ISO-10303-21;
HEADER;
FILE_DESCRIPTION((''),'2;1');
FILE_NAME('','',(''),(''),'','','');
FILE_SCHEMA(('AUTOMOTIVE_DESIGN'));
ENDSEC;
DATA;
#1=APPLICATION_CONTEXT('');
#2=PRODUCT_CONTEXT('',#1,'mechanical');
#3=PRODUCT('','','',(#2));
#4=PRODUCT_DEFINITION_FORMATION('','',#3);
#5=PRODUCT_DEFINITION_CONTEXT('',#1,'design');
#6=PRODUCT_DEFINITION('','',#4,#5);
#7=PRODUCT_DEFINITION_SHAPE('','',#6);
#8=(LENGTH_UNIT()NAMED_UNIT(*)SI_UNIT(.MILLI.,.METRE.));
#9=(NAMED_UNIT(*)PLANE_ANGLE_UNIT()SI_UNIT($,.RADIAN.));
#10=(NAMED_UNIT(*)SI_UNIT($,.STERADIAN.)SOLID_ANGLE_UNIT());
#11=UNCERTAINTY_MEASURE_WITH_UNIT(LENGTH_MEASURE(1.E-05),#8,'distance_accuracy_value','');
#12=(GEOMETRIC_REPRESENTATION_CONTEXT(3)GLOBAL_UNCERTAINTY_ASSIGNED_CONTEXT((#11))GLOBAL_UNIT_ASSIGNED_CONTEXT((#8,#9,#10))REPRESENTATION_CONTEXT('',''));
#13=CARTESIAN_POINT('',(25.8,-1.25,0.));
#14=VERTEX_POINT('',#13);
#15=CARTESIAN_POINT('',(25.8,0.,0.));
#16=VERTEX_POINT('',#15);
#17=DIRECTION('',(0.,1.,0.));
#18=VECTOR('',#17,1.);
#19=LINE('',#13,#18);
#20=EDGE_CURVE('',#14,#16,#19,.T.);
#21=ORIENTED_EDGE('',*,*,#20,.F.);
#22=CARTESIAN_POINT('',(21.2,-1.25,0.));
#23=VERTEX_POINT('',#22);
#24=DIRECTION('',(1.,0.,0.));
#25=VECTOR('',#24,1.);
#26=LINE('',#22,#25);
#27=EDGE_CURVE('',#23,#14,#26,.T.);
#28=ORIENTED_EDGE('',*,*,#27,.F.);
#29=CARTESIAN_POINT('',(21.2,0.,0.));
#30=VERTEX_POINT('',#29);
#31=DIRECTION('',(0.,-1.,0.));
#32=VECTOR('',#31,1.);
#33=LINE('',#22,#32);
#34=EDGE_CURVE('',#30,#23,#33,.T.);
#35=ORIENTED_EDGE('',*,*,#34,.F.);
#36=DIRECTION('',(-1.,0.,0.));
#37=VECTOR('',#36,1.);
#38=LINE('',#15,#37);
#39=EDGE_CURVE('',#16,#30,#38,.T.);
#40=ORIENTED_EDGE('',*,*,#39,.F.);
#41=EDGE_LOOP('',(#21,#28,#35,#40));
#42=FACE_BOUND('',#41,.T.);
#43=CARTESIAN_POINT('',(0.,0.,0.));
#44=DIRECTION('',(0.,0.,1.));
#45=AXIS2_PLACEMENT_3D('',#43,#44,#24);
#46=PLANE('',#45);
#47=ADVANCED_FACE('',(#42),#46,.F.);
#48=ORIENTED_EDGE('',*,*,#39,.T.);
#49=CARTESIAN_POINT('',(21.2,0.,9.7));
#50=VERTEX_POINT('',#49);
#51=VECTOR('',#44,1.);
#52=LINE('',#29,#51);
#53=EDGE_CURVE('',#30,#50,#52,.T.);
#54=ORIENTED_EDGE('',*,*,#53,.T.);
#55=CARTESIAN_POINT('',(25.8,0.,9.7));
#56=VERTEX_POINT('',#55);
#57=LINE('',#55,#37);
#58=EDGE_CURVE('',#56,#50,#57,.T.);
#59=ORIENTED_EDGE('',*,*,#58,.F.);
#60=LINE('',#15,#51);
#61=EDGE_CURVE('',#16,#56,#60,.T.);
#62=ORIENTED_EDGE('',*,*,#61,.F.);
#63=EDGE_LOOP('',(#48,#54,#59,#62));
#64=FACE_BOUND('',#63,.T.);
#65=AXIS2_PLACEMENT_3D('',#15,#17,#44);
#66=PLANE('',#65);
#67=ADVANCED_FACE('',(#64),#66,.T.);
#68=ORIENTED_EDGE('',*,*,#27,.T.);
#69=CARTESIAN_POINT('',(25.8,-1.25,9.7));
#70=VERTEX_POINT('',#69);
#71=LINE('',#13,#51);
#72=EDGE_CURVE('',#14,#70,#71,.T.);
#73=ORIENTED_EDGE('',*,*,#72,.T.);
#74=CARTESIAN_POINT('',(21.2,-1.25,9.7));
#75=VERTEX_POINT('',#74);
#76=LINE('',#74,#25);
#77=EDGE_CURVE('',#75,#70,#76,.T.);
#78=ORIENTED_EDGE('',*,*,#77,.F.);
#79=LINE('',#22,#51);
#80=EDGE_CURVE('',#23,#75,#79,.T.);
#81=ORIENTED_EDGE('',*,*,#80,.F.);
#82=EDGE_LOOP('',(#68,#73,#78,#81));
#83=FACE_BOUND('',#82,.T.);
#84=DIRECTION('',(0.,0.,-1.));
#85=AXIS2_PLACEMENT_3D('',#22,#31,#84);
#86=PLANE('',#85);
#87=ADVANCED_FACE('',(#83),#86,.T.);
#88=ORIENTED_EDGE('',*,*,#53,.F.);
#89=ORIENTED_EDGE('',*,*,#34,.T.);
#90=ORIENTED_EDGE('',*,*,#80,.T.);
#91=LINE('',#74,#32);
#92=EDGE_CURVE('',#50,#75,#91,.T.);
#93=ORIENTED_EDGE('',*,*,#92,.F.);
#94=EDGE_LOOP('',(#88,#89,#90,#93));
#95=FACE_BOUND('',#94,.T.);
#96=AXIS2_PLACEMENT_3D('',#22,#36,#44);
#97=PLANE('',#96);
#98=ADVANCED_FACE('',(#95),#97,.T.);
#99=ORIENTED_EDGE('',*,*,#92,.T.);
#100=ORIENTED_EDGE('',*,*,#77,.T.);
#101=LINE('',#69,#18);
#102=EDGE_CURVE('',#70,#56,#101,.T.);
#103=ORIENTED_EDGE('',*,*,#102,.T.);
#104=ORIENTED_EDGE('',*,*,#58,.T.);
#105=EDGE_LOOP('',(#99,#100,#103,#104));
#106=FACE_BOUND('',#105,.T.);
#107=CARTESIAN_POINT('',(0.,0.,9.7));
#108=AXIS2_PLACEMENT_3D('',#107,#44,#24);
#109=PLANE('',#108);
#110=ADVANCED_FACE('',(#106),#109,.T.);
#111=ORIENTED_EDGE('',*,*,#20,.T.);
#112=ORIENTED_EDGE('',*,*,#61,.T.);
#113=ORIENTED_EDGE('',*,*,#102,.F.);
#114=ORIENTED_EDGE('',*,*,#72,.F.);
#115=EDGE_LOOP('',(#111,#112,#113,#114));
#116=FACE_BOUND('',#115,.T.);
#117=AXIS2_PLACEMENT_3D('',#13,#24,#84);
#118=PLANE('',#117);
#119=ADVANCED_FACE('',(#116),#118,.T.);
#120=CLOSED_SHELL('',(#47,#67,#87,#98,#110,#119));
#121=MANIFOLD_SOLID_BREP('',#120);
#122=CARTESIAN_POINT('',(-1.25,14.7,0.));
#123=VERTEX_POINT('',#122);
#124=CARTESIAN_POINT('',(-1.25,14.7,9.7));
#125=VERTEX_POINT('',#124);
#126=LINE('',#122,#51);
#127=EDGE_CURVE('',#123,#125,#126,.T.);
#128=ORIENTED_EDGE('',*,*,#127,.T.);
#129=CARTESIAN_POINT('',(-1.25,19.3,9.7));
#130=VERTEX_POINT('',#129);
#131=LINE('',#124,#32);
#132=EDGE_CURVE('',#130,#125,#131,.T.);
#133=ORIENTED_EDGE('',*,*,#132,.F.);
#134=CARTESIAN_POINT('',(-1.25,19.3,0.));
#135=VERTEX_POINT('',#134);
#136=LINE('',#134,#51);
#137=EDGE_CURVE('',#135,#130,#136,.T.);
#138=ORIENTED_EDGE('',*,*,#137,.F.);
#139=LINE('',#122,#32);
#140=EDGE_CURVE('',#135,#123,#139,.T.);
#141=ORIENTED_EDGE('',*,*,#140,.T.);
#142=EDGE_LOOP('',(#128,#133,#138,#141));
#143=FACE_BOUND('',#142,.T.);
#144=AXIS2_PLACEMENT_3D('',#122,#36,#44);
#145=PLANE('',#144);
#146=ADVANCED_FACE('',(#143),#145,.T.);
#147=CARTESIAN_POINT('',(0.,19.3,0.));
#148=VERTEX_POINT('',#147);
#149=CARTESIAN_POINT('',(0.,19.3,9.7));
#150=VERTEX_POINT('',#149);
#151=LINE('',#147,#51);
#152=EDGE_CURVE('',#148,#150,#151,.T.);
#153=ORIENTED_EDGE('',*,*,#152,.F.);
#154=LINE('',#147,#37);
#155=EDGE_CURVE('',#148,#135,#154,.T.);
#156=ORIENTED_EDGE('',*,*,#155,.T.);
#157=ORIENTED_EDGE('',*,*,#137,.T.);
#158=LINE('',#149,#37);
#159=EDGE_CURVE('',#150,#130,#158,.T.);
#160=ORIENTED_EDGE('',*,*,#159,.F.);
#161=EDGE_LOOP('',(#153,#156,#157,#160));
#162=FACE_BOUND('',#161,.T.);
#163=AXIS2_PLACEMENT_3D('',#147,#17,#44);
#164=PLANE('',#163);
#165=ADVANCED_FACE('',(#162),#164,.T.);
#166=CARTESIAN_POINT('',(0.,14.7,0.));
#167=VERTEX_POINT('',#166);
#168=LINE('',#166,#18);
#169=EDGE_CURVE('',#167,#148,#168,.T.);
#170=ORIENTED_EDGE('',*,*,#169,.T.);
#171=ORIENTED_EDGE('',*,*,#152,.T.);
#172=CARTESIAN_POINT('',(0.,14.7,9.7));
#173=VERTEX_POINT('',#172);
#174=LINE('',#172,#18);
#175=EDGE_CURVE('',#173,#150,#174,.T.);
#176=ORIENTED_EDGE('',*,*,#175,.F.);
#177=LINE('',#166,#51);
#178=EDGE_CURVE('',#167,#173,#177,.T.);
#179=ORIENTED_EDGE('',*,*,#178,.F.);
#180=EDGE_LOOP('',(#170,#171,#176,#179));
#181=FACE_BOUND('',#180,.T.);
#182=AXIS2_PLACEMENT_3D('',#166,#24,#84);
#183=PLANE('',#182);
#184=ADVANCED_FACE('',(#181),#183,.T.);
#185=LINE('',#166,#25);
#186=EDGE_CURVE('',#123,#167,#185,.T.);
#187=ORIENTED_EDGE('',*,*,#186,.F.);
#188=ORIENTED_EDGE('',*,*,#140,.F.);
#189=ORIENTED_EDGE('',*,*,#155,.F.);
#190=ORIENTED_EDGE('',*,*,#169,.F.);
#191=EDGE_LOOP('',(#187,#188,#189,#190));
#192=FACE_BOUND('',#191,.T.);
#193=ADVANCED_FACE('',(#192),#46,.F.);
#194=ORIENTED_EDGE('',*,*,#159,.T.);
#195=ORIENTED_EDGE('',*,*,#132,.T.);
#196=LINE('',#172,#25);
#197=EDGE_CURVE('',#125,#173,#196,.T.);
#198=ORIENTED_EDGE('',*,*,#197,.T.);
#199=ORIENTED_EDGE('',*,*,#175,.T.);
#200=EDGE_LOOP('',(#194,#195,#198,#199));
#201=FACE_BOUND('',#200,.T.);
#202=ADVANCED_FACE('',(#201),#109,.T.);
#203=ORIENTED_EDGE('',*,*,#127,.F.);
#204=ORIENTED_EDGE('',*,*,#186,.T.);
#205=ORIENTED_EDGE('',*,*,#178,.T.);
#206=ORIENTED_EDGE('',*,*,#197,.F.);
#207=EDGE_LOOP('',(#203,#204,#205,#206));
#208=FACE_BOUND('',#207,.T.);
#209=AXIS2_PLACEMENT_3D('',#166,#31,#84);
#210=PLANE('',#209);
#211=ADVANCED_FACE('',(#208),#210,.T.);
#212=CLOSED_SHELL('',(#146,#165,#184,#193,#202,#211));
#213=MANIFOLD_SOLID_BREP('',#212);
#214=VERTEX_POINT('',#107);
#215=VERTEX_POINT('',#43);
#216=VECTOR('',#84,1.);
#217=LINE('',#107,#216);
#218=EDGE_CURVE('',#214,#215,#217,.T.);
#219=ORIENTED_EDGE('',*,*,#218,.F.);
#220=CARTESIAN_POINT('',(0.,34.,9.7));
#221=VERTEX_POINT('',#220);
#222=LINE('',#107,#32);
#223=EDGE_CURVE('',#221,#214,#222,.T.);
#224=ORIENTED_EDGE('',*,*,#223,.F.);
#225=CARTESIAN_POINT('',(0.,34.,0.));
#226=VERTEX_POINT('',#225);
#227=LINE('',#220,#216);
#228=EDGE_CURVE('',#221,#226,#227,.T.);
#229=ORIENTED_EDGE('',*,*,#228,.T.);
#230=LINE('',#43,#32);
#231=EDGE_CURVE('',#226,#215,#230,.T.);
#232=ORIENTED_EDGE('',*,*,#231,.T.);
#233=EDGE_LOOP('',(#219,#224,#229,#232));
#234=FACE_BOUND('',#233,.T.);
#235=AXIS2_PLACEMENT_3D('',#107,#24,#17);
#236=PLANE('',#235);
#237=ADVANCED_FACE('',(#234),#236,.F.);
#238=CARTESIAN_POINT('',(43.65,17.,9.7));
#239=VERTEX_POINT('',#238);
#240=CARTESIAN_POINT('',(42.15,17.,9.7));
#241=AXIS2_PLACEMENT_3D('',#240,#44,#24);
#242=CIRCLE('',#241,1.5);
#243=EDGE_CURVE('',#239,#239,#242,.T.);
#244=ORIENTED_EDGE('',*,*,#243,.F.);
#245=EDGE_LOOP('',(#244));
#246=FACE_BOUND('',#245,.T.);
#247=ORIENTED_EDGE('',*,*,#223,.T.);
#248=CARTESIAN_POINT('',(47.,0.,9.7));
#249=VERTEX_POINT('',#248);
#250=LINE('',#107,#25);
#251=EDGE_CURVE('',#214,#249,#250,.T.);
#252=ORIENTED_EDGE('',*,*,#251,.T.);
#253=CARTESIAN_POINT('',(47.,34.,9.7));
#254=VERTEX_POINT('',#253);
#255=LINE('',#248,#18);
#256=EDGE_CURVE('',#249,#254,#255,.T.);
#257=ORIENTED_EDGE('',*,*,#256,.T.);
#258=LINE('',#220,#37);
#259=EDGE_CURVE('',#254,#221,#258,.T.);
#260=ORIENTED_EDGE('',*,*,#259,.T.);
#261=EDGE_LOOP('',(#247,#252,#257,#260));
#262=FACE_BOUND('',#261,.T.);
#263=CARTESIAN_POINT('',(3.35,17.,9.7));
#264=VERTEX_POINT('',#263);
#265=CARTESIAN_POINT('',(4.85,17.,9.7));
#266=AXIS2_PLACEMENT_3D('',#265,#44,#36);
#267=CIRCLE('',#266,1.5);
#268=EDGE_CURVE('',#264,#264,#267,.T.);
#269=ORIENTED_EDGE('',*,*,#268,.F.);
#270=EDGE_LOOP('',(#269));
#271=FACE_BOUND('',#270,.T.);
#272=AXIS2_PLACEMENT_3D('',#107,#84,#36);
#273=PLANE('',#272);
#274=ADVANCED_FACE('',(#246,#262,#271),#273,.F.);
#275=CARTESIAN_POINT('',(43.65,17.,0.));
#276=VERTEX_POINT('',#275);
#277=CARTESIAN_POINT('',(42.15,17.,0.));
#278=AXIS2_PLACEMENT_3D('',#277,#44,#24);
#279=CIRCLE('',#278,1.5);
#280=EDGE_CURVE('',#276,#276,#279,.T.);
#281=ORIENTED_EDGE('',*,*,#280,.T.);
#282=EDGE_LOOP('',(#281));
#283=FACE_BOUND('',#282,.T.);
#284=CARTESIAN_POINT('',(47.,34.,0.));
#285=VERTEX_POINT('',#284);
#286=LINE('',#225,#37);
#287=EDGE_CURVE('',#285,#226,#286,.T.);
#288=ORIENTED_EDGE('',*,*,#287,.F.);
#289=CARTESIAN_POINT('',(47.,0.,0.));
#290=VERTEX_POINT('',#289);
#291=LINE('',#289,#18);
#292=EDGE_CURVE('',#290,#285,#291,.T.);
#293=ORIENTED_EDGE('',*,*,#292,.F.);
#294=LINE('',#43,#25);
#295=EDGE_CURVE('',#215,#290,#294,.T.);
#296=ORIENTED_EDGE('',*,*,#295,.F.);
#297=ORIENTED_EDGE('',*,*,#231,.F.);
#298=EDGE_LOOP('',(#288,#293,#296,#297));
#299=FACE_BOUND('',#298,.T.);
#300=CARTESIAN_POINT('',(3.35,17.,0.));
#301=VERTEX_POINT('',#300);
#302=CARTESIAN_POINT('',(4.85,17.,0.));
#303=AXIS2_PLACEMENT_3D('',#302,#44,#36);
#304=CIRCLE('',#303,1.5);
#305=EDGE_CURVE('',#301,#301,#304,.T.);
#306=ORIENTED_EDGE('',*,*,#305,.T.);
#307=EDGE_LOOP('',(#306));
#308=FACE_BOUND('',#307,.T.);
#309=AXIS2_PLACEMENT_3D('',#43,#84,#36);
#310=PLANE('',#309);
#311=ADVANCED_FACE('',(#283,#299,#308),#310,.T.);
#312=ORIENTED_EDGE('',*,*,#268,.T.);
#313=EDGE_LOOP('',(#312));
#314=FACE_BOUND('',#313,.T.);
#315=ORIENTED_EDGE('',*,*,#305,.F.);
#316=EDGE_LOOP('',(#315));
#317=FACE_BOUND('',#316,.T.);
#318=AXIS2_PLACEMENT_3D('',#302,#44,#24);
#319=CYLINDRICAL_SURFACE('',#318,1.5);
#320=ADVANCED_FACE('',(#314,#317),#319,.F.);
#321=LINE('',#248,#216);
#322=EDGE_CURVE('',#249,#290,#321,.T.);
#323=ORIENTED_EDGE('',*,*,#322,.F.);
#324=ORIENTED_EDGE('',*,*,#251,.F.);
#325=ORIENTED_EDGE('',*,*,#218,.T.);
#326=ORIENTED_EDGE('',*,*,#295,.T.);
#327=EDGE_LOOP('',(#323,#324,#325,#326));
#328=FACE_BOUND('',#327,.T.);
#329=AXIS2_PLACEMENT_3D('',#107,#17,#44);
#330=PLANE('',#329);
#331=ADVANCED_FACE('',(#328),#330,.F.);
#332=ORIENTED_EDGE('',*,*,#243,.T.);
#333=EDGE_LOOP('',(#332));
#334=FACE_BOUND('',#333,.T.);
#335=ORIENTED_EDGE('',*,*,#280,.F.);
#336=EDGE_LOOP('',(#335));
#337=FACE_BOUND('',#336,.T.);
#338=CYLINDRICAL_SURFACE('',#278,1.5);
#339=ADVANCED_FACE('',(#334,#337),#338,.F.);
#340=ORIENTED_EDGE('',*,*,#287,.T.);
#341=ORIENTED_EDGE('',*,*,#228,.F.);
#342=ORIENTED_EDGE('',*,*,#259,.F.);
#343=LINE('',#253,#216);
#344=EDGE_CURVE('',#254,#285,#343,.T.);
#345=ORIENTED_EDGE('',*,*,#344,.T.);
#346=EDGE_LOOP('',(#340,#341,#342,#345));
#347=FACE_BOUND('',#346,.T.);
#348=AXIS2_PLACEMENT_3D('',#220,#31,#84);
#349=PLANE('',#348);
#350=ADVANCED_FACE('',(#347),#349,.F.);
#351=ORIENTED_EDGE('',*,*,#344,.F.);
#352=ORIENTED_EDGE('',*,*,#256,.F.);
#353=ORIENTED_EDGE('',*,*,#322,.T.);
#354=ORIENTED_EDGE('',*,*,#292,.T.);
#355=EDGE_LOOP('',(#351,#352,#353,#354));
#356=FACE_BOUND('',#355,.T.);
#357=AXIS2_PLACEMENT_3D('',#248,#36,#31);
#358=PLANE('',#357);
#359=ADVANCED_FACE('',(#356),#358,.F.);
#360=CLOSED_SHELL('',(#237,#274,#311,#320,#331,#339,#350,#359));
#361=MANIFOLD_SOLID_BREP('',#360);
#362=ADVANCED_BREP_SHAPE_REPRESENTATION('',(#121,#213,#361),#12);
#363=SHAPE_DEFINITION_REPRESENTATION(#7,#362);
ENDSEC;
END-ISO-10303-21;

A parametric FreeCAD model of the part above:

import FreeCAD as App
import Part
import Sketcher
Q = App.Units.Quantity


def add_polygon(sketch, points):
    """Adds a closed chain of lines whose ends are joined by coincident constraints."""
    first, n = sketch.GeometryCount, len(points)
    for a, b in zip(points, points[1:] + points[:1]):
        sketch.addGeometry(Part.LineSegment(App.Vector(*a, 0), App.Vector(*b, 0)), False)
    for i in range(n):
        sketch.addConstraint(Sketcher.Constraint("Coincident", first + i, 2, first + (i + 1) % n, 1))

doc = App.newDocument("Part")
body = doc.addObject("PartDesign::Body", "Body")

# Sketch on XY plane
sketch1 = body.newObject("Sketcher::SketchObject", "Sketch")
sketch1.AttachmentSupport = (doc.getObject("XY_Plane"), [""])
sketch1.MapMode = "FlatFace"
add_polygon(sketch1, [(0, 34), (0, 0), (47, 0), (47, 34)])  # lines 0-3
sketch1.addConstraint([
    Sketcher.Constraint("Vertical", 0),
    Sketcher.Constraint("Horizontal", 1),
    Sketcher.Constraint("Vertical", 2),
    Sketcher.Constraint("Horizontal", 3),
    Sketcher.Constraint("Coincident", 0, 2, -1, 1),
    Sketcher.Constraint("DistanceX", 1, 1, 1, 2, Q("47 mm")),
    Sketcher.Constraint("DistanceY", 0, 2, 0, 1, Q("34 mm")),
])
pad1 = body.newObject("PartDesign::Pad", "Pad")
pad1.Profile = sketch1
pad1.Length = 9.7

# Sketch on XY plane
sketch2 = body.newObject("Sketcher::SketchObject", "Sketch001")
sketch2.AttachmentSupport = (doc.getObject("XY_Plane"), [""])
sketch2.MapMode = "FlatFace"
sketch2.AttachmentOffset = App.Placement(App.Vector(0, 0, 9.7), App.Rotation())
sketch2.addGeometry([
    Part.Circle(App.Vector(42.1, 17, 0), App.Vector(0, 0, 1), 1.5),
    Part.Circle(App.Vector(4.8, 17, 0), App.Vector(0, 0, 1), 1.5),
], False)
sketch2.addConstraint([
    Sketcher.Constraint("Equal", 0, 1),
    Sketcher.Constraint("Horizontal", 0, 3, 1, 3),
    Sketcher.Constraint("Diameter", 0, Q("3 mm")),
    Sketcher.Constraint("DistanceY", -1, 1, 0, 3, Q("17 mm")),
    Sketcher.Constraint("DistanceX", 1, 3, 0, 3, Q("37.3 mm")),
    Sketcher.Constraint("DistanceX", -1, 1, 0, 3, Q("42.15 mm")),
])
pocket1 = body.newObject("PartDesign::Pocket", "Pocket")
pocket1.Profile = sketch2
pocket1.Type = "ThroughAll"
body2 = doc.addObject("PartDesign::Body", "Body001")

# Sketch on XY plane
sketch3 = body2.newObject("Sketcher::SketchObject", "Sketch002")
sketch3.AttachmentSupport = (doc.getObject("XY_Plane001"), [""])
sketch3.MapMode = "FlatFace"
sketch3.AttachmentOffset = App.Placement(App.Vector(0, 0, 9.7), App.Rotation())
add_polygon(sketch3, [(-1.2, 19.3), (-1.2, 14.7), (0, 14.7), (0, 19.3)])  # lines 0-3
sketch3.addConstraint([
    Sketcher.Constraint("Vertical", 0),
    Sketcher.Constraint("Horizontal", 1),
    Sketcher.Constraint("Vertical", 2),
    Sketcher.Constraint("Horizontal", 3),
    Sketcher.Constraint("PointOnObject", 1, 2, -2),
    Sketcher.Constraint("DistanceY", 0, 2, 0, 1, Q("4.6 mm")),
    Sketcher.Constraint("DistanceX", 1, 1, 1, 2, Q("1.25 mm")),
    Sketcher.Constraint("DistanceY", -1, 1, 0, 2, Q("14.7 mm")),
])
pad2 = body2.newObject("PartDesign::Pad", "Pad001")
pad2.Profile = sketch3
pad2.Length = 9.7
pad2.Reversed = True
body3 = doc.addObject("PartDesign::Body", "Body002")

# Sketch on XY plane
sketch4 = body3.newObject("Sketcher::SketchObject", "Sketch003")
sketch4.AttachmentSupport = (doc.getObject("XY_Plane002"), [""])
sketch4.MapMode = "FlatFace"
sketch4.AttachmentOffset = App.Placement(App.Vector(0, 0, 9.7), App.Rotation())
add_polygon(sketch4, [(21.2, 0), (21.2, -1.2), (25.8, -1.2), (25.8, 0)])  # lines 0-3
sketch4.addConstraint([
    Sketcher.Constraint("Vertical", 0),
    Sketcher.Constraint("Horizontal", 1),
    Sketcher.Constraint("Vertical", 2),
    Sketcher.Constraint("Horizontal", 3),
    Sketcher.Constraint("PointOnObject", 2, 2, -1),
    Sketcher.Constraint("DistanceX", 1, 1, 1, 2, Q("4.6 mm")),
    Sketcher.Constraint("DistanceY", 0, 2, 0, 1, Q("1.25 mm")),
    Sketcher.Constraint("DistanceX", -1, 1, 0, 2, Q("21.2 mm")),
])
pad3 = body3.newObject("PartDesign::Pad", "Pad002")
pad3.Profile = sketch4
pad3.Length = 9.7
pad3.Reversed = True

doc.recompute()
